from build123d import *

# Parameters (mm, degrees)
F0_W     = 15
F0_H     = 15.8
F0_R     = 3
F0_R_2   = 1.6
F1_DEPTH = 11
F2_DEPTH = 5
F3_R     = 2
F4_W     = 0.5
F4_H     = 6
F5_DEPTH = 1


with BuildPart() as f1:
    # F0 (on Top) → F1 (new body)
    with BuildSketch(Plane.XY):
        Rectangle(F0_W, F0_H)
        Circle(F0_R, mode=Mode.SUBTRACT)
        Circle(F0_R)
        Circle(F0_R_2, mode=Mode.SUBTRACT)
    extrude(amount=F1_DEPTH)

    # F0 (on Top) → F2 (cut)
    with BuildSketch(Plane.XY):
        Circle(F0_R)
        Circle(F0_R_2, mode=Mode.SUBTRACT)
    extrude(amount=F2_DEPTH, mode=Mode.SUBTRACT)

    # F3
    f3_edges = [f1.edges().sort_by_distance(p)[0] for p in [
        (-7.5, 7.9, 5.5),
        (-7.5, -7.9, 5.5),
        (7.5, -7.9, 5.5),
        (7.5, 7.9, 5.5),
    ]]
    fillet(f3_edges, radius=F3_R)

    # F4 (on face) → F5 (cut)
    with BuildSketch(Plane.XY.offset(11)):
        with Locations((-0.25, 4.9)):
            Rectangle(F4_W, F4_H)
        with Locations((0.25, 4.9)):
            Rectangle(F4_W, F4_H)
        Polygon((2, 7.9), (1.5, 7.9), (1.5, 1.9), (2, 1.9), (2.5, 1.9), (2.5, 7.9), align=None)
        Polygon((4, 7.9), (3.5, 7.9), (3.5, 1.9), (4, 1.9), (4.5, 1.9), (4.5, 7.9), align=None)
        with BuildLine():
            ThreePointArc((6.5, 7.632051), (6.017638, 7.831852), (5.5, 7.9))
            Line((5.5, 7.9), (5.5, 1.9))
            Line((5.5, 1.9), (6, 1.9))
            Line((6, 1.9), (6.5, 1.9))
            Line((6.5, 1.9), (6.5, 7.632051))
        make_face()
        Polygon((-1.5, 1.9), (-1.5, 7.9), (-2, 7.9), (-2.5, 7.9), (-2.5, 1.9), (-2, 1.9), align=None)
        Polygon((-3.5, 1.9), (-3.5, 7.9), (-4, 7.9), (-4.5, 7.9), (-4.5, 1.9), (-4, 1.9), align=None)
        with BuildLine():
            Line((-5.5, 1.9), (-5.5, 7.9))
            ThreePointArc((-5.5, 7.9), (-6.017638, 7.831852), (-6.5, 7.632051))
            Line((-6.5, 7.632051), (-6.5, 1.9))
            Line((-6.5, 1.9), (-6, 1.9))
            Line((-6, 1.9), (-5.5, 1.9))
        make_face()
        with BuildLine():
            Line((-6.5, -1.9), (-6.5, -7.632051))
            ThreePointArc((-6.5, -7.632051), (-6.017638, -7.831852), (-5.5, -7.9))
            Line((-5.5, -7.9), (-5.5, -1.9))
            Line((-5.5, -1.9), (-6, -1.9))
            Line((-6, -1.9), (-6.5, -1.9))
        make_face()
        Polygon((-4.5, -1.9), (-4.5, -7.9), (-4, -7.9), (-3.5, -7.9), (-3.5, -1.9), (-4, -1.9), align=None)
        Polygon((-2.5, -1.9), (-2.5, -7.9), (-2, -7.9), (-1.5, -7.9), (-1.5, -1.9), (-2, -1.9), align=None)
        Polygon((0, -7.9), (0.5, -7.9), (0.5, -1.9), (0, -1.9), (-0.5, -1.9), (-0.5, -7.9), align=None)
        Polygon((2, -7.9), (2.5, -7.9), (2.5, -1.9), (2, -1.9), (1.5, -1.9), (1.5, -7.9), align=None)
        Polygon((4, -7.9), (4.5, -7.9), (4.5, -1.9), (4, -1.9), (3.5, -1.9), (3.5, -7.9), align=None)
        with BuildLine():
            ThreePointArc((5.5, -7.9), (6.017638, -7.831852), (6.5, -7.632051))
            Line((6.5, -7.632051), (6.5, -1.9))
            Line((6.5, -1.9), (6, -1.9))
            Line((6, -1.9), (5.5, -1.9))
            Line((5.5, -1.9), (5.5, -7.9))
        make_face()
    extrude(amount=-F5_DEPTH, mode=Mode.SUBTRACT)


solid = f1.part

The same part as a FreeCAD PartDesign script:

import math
import FreeCAD as App
import Part
import Sketcher

V = App.Vector
Q = App.Units.Quantity


def edges_at(feature, points):
    """Names of the edges that pass closest to the given points."""
    edges = feature.Shape.Edges
    near = lambda p: min(range(len(edges)), key=lambda i: edges[i].distToShape(Part.Vertex(*p))[0])
    return sorted({f"Edge{near(p) + 1}" for p in points})

doc = App.newDocument("Part")
body = doc.addObject("PartDesign::Body", "Body")

# Sketch on XY plane
sketch1 = body.newObject("Sketcher::SketchObject", "Sketch")
sketch1.AttachmentSupport = (doc.getObject("XY_Plane"), [""])
sketch1.MapMode = "FlatFace"
sketch1.addGeometry([
    Part.LineSegment(V(-7.5, 7.9, 0), V(-7.5, -7.9, 0)),  # 0
    Part.LineSegment(V(-7.5, -7.9, 0), V(7.5, -7.9, 0)),  # 1
    Part.LineSegment(V(7.5, -7.9, 0), V(7.5, 7.9, 0)),  # 2
    Part.LineSegment(V(7.5, 7.9, 0), V(-7.5, 7.9, 0)),  # 3
    Part.Circle(V(0, 0, 0), V(0, 0, 1), 1.6),  # 4
], False)
sketch1.addConstraint([
    Sketcher.Constraint("Coincident", 0, 2, 1, 1),
    Sketcher.Constraint("Coincident", 1, 2, 2, 1),
    Sketcher.Constraint("Coincident", 2, 2, 3, 1),
    Sketcher.Constraint("Coincident", 3, 2, 0, 1),
    Sketcher.Constraint("Vertical", 0),
    Sketcher.Constraint("Horizontal", 1),
    Sketcher.Constraint("Vertical", 2),
    Sketcher.Constraint("Horizontal", 3),
    Sketcher.Constraint("Coincident", 4, 3, -1, 1),
    Sketcher.Constraint("Symmetric", 0, 2, 2, 2, -1, 1),
    Sketcher.Constraint("Diameter", 4, Q("3.2 mm")),
    Sketcher.Constraint("DistanceX", 1, 1, 1, 2, Q("15 mm")),
    Sketcher.Constraint("DistanceY", 0, 2, 0, 1, Q("15.8 mm")),
])
pad1 = body.newObject("PartDesign::Pad", "Pad")
pad1.Profile = sketch1
pad1.Length = 11

# Sketch on XY plane
sketch2 = body.newObject("Sketcher::SketchObject", "Sketch001")
sketch2.AttachmentSupport = (doc.getObject("XY_Plane"), [""])
sketch2.MapMode = "FlatFace"
sketch2.addGeometry([
    Part.Circle(V(0, 0, 0), V(0, 0, 1), 3),
    Part.Circle(V(0, 0, 0), V(0, 0, 1), 1.6),
], False)
sketch2.addConstraint([
    Sketcher.Constraint("Coincident", 0, 3, -1, 1),
    Sketcher.Constraint("Coincident", 1, 3, -1, 1),
    Sketcher.Constraint("Diameter", 0, Q("6 mm")),
    Sketcher.Constraint("Diameter", 1, Q("3.2 mm")),
])
pocket1 = body.newObject("PartDesign::Pocket", "Pocket")
pocket1.Profile = sketch2
pocket1.Length = 5
pocket1.Reversed = True
doc.recompute()

fillet = body.newObject("PartDesign::Fillet", "Fillet")
fillet.Base = (pocket1, edges_at(pocket1, [
    (-7.5, 7.9, 5.5),
    (-7.5, -7.9, 5.5),
    (7.5, -7.9, 5.5),
    (7.5, 7.9, 5.5),
]))
fillet.Radius = 2

# Sketch on XY plane
sketch3 = body.newObject("Sketcher::SketchObject", "Sketch002")
sketch3.AttachmentSupport = (doc.getObject("XY_Plane"), [""])
sketch3.MapMode = "FlatFace"
sketch3.AttachmentOffset = App.Placement(V(0, 0, 11), App.Rotation())
sketch3.addGeometry([
    Part.LineSegment(V(-0.5, 7.9, 0), V(-0.5, 1.9, 0)),  # 0
    Part.LineSegment(V(-0.5, 1.9, 0), V(0.5, 1.9, 0)),  # 1
    Part.LineSegment(V(0.5, 1.9, 0), V(0.5, 7.9, 0)),  # 2
    Part.LineSegment(V(0.5, 7.9, 0), V(-0.5, 7.9, 0)),  # 3
    Part.LineSegment(V(1.5, 7.9, 0), V(1.5, 1.9, 0)),  # 4
    Part.LineSegment(V(1.5, 1.9, 0), V(2.5, 1.9, 0)),  # 5
    Part.LineSegment(V(2.5, 1.9, 0), V(2.5, 7.9, 0)),  # 6
    Part.LineSegment(V(2.5, 7.9, 0), V(1.5, 7.9, 0)),  # 7
    Part.LineSegment(V(3.5, 7.9, 0), V(3.5, 1.9, 0)),  # 8
    Part.LineSegment(V(3.5, 1.9, 0), V(4.5, 1.9, 0)),  # 9
    Part.LineSegment(V(4.5, 1.9, 0), V(4.5, 7.9, 0)),  # 10
    Part.LineSegment(V(4.5, 7.9, 0), V(3.5, 7.9, 0)),  # 11
    Part.ArcOfCircle(Part.Circle(V(5.5, 5.9, 0), V(0, 0, 1), 2), math.radians(60), math.radians(90)),  # 12
    Part.LineSegment(V(5.5, 7.9, 0), V(5.5, 1.9, 0)),  # 13
    Part.LineSegment(V(5.5, 1.9, 0), V(6.5, 1.9, 0)),  # 14
    Part.LineSegment(V(6.5, 1.9, 0), V(6.5, 7.6, 0)),  # 15
    Part.LineSegment(V(-1.5, 1.9, 0), V(-1.5, 7.9, 0)),  # 16
    Part.LineSegment(V(-1.5, 7.9, 0), V(-2.5, 7.9, 0)),  # 17
    Part.LineSegment(V(-2.5, 7.9, 0), V(-2.5, 1.9, 0)),  # 18
    Part.LineSegment(V(-2.5, 1.9, 0), V(-1.5, 1.9, 0)),  # 19
    Part.LineSegment(V(-3.5, 1.9, 0), V(-3.5, 7.9, 0)),  # 20
    Part.LineSegment(V(-3.5, 7.9, 0), V(-4.5, 7.9, 0)),  # 21
    Part.LineSegment(V(-4.5, 7.9, 0), V(-4.5, 1.9, 0)),  # 22
    Part.LineSegment(V(-4.5, 1.9, 0), V(-3.5, 1.9, 0)),  # 23
    Part.LineSegment(V(-5.5, 1.9, 0), V(-5.5, 7.9, 0)),  # 24
    Part.ArcOfCircle(Part.Circle(V(-5.5, 5.9, 0), V(0, 0, 1), 2), math.radians(90), math.radians(120)),  # 25
    Part.LineSegment(V(-6.5, 7.6, 0), V(-6.5, 1.9, 0)),  # 26
    Part.LineSegment(V(-6.5, 1.9, 0), V(-5.5, 1.9, 0)),  # 27
    Part.LineSegment(V(-6.5, -1.9, 0), V(-6.5, -7.6, 0)),  # 28
    Part.ArcOfCircle(Part.Circle(V(-5.5, -5.9, 0), V(0, 0, 1), 2), math.radians(-120), math.radians(-90)),  # 29
    Part.LineSegment(V(-5.5, -7.9, 0), V(-5.5, -1.9, 0)),  # 30
    Part.LineSegment(V(-5.5, -1.9, 0), V(-6.5, -1.9, 0)),  # 31
    Part.LineSegment(V(-4.5, -1.9, 0), V(-4.5, -7.9, 0)),  # 32
    Part.LineSegment(V(-4.5, -7.9, 0), V(-3.5, -7.9, 0)),  # 33
    Part.LineSegment(V(-3.5, -7.9, 0), V(-3.5, -1.9, 0)),  # 34
    Part.LineSegment(V(-3.5, -1.9, 0), V(-4.5, -1.9, 0)),  # 35
    Part.LineSegment(V(-2.5, -1.9, 0), V(-2.5, -7.9, 0)),  # 36
    Part.LineSegment(V(-2.5, -7.9, 0), V(-1.5, -7.9, 0)),  # 37
    Part.LineSegment(V(-1.5, -7.9, 0), V(-1.5, -1.9, 0)),  # 38
    Part.LineSegment(V(-1.5, -1.9, 0), V(-2.5, -1.9, 0)),  # 39
    Part.LineSegment(V(0.5, -7.9, 0), V(0.5, -1.9, 0)),  # 40
    Part.LineSegment(V(0.5, -1.9, 0), V(-0.5, -1.9, 0)),  # 41
    Part.LineSegment(V(-0.5, -1.9, 0), V(-0.5, -7.9, 0)),  # 42
    Part.LineSegment(V(-0.5, -7.9, 0), V(0.5, -7.9, 0)),  # 43
    Part.LineSegment(V(2.5, -7.9, 0), V(2.5, -1.9, 0)),  # 44
    Part.LineSegment(V(2.5, -1.9, 0), V(1.5, -1.9, 0)),  # 45
    Part.LineSegment(V(1.5, -1.9, 0), V(1.5, -7.9, 0)),  # 46
    Part.LineSegment(V(1.5, -7.9, 0), V(2.5, -7.9, 0)),  # 47
    Part.LineSegment(V(4.5, -7.9, 0), V(4.5, -1.9, 0)),  # 48
    Part.LineSegment(V(4.5, -1.9, 0), V(3.5, -1.9, 0)),  # 49
    Part.LineSegment(V(3.5, -1.9, 0), V(3.5, -7.9, 0)),  # 50
    Part.LineSegment(V(3.5, -7.9, 0), V(4.5, -7.9, 0)),  # 51
    Part.ArcOfCircle(Part.Circle(V(5.5, -5.9, 0), V(0, 0, 1), 2), math.radians(-90), math.radians(-60)),  # 52
    Part.LineSegment(V(6.5, -7.6, 0), V(6.5, -1.9, 0)),  # 53
    Part.LineSegment(V(6.5, -1.9, 0), V(5.5, -1.9, 0)),  # 54
    Part.LineSegment(V(5.5, -1.9, 0), V(5.5, -7.9, 0)),  # 55
], False)
sketch3.addConstraint([
    Sketcher.Constraint("Coincident", 0, 2, 1, 1),
    Sketcher.Constraint("Coincident", 1, 2, 2, 1),
    Sketcher.Constraint("Coincident", 2, 2, 3, 1),
    Sketcher.Constraint("Coincident", 3, 2, 0, 1),
    Sketcher.Constraint("Coincident", 4, 2, 5, 1),
    Sketcher.Constraint("Coincident", 5, 2, 6, 1),
    Sketcher.Constraint("Coincident", 6, 2, 7, 1),
    Sketcher.Constraint("Coincident", 7, 2, 4, 1),
    Sketcher.Constraint("Coincident", 8, 2, 9, 1),
    Sketcher.Constraint("Coincident", 9, 2, 10, 1),
    Sketcher.Constraint("Coincident", 10, 2, 11, 1),
    Sketcher.Constraint("Coincident", 11, 2, 8, 1),
    Sketcher.Constraint("Coincident", 12, 2, 13, 1),
    Sketcher.Constraint("Coincident", 13, 2, 14, 1),
    Sketcher.Constraint("Coincident", 14, 2, 15, 1),
    Sketcher.Constraint("Coincident", 15, 2, 12, 1),
    Sketcher.Constraint("Coincident", 16, 2, 17, 1),
    Sketcher.Constraint("Coincident", 17, 2, 18, 1),
    Sketcher.Constraint("Coincident", 18, 2, 19, 1),
    Sketcher.Constraint("Coincident", 19, 2, 16, 1),
    Sketcher.Constraint("Coincident", 20, 2, 21, 1),
    Sketcher.Constraint("Coincident", 21, 2, 22, 1),
    Sketcher.Constraint("Coincident", 22, 2, 23, 1),
    Sketcher.Constraint("Coincident", 23, 2, 20, 1),
    Sketcher.Constraint("Coincident", 24, 2, 25, 1),
    Sketcher.Constraint("Coincident", 25, 2, 26, 1),
    Sketcher.Constraint("Coincident", 26, 2, 27, 1),
    Sketcher.Constraint("Coincident", 27, 2, 24, 1),
    Sketcher.Constraint("Coincident", 28, 2, 29, 1),
    Sketcher.Constraint("Coincident", 29, 2, 30, 1),
    Sketcher.Constraint("Coincident", 30, 2, 31, 1),
    Sketcher.Constraint("Coincident", 31, 2, 28, 1),
    Sketcher.Constraint("Coincident", 32, 2, 33, 1),
    Sketcher.Constraint("Coincident", 33, 2, 34, 1),
    Sketcher.Constraint("Coincident", 34, 2, 35, 1),
    Sketcher.Constraint("Coincident", 35, 2, 32, 1),
    Sketcher.Constraint("Coincident", 36, 2, 37, 1),
    Sketcher.Constraint("Coincident", 37, 2, 38, 1),
    Sketcher.Constraint("Coincident", 38, 2, 39, 1),
    Sketcher.Constraint("Coincident", 39, 2, 36, 1),
    Sketcher.Constraint("Coincident", 40, 2, 41, 1),
    Sketcher.Constraint("Coincident", 41, 2, 42, 1),
    Sketcher.Constraint("Coincident", 42, 2, 43, 1),
    Sketcher.Constraint("Coincident", 43, 2, 40, 1),
    Sketcher.Constraint("Coincident", 44, 2, 45, 1),
    Sketcher.Constraint("Coincident", 45, 2, 46, 1),
    Sketcher.Constraint("Coincident", 46, 2, 47, 1),
    Sketcher.Constraint("Coincident", 47, 2, 44, 1),
    Sketcher.Constraint("Coincident", 48, 2, 49, 1),
    Sketcher.Constraint("Coincident", 49, 2, 50, 1),
    Sketcher.Constraint("Coincident", 50, 2, 51, 1),
    Sketcher.Constraint("Coincident", 51, 2, 48, 1),
    Sketcher.Constraint("Coincident", 52, 2, 53, 1),
    Sketcher.Constraint("Coincident", 53, 2, 54, 1),
    Sketcher.Constraint("Coincident", 54, 2, 55, 1),
    Sketcher.Constraint("Coincident", 55, 2, 52, 1),
    Sketcher.Constraint("Vertical", 0),
    Sketcher.Constraint("Horizontal", 1),
    Sketcher.Constraint("Vertical", 2),
    Sketcher.Constraint("Horizontal", 3),
    Sketcher.Constraint("Vertical", 4),
    Sketcher.Constraint("Horizontal", 5),
    Sketcher.Constraint("Vertical", 6),
    Sketcher.Constraint("Horizontal", 7),
    Sketcher.Constraint("Vertical", 8),
    Sketcher.Constraint("Horizontal", 9),
    Sketcher.Constraint("Vertical", 10),
    Sketcher.Constraint("Horizontal", 11),
    Sketcher.Constraint("Vertical", 13),
    Sketcher.Constraint("Horizontal", 14),
    Sketcher.Constraint("Vertical", 15),
    Sketcher.Constraint("Vertical", 16),
    Sketcher.Constraint("Horizontal", 17),
    Sketcher.Constraint("Vertical", 18),
    Sketcher.Constraint("Horizontal", 19),
    Sketcher.Constraint("Vertical", 20),
    Sketcher.Constraint("Horizontal", 21),
    Sketcher.Constraint("Vertical", 22),
    Sketcher.Constraint("Horizontal", 23),
    Sketcher.Constraint("Vertical", 24),
    Sketcher.Constraint("Vertical", 26),
    Sketcher.Constraint("Horizontal", 27),
    Sketcher.Constraint("Vertical", 28),
    Sketcher.Constraint("Vertical", 30),
    Sketcher.Constraint("Horizontal", 31),
    Sketcher.Constraint("Vertical", 32),
    Sketcher.Constraint("Horizontal", 33),
    Sketcher.Constraint("Vertical", 34),
    Sketcher.Constraint("Horizontal", 35),
    Sketcher.Constraint("Vertical", 36),
    Sketcher.Constraint("Horizontal", 37),
    Sketcher.Constraint("Vertical", 38),
    Sketcher.Constraint("Horizontal", 39),
    Sketcher.Constraint("Vertical", 40),
    Sketcher.Constraint("Horizontal", 41),
    Sketcher.Constraint("Vertical", 42),
    Sketcher.Constraint("Horizontal", 43),
    Sketcher.Constraint("Vertical", 44),
    Sketcher.Constraint("Horizontal", 45),
    Sketcher.Constraint("Vertical", 46),
    Sketcher.Constraint("Horizontal", 47),
    Sketcher.Constraint("Vertical", 48),
    Sketcher.Constraint("Horizontal", 49),
    Sketcher.Constraint("Vertical", 50),
    Sketcher.Constraint("Horizontal", 51),
    Sketcher.Constraint("Vertical", 53),
    Sketcher.Constraint("Horizontal", 54),
    Sketcher.Constraint("Vertical", 55),
    Sketcher.Constraint("Equal", 12, 25),
    Sketcher.Constraint("Equal", 25, 29),
    Sketcher.Constraint("Equal", 29, 52),
    Sketcher.Constraint("Symmetric", 12, 3, 29, 3, -1, 1),
    Sketcher.Constraint("Symmetric", 25, 3, 52, 3, -1, 1),
    Sketcher.Constraint("Symmetric", 13, 2, 30, 2, -1, 1),
    Sketcher.Constraint("Symmetric", 10, 2, 32, 2, -1, 1),
    Sketcher.Constraint("Symmetric", 8, 2, 34, 2, -1, 1),
    Sketcher.Constraint("Symmetric", 6, 2, 36, 2, -1, 1),
    Sketcher.Constraint("Symmetric", 4, 2, 38, 2, -1, 1),
    Sketcher.Constraint("Symmetric", 0, 2, 40, 2, -1, 1),
    Sketcher.Constraint("Symmetric", 2, 2, 42, 2, -1, 1),
    Sketcher.Constraint("Symmetric", 18, 2, 44, 2, -1, 1),
    Sketcher.Constraint("Symmetric", 16, 2, 46, 2, -1, 1),
    Sketcher.Constraint("Symmetric", 22, 2, 48, 2, -1, 1),
    Sketcher.Constraint("Symmetric", 20, 2, 50, 2, -1, 1),
    Sketcher.Constraint("Symmetric", 26, 2, 53, 2, -1, 1),
    Sketcher.Constraint("Symmetric", 12, 3, 25, 3, -2),
    Sketcher.Constraint("Symmetric", 7, 2, 16, 2, -2),
    Sketcher.Constraint("Symmetric", 5, 2, 18, 2, -2),
    Sketcher.Constraint("Symmetric", 11, 2, 20, 2, -2),
    Sketcher.Constraint("Symmetric", 9, 2, 22, 2, -2),
    Sketcher.Constraint("Symmetric", 14, 2, 26, 2, -2),
    Sketcher.Constraint("Horizontal", 1, 2, 4, 2),
    Sketcher.Constraint("Horizontal", 3, 2, 6, 2),
    Sketcher.Constraint("Horizontal", 5, 2, 8, 2),
    Sketcher.Constraint("Horizontal", 7, 2, 10, 2),
    Sketcher.Constraint("Horizontal", 11, 2, 12, 2),
    Sketcher.Constraint("Horizontal", 9, 2, 13, 2),
    Sketcher.Constraint("Horizontal", 28, 2, 52, 2),
    Sketcher.Constraint("Vertical", 27, 2, 29, 2),
    Sketcher.Constraint("Vertical", 2, 2, 40, 2),
    Sketcher.Constraint("Vertical", 13, 2, 54, 2),
    Sketcher.Constraint("Equal", 3, 5),
    Sketcher.Constraint("Equal", 7, 9),
    Sketcher.Constraint("Equal", 11, 14),
    Sketcher.Constraint("DistanceX", 1, 1, 1, 2, Q("1 mm")),
    Sketcher.Constraint("DistanceY", 0, 2, 0, 1, Q("6 mm")),
    Sketcher.Constraint("DistanceX", 1, 2, 4, 2, Q("1 mm")),
    Sketcher.Constraint("DistanceX", 5, 2, 8, 2, Q("1 mm")),
    Sketcher.Constraint("DistanceX", 10, 2, 12, 2, Q("1 mm")),
    Sketcher.Constraint("DistanceY", -1, 1, 0, 2, Q("1.9 mm")),
    Sketcher.Constraint("Radius", 12, Q("1.999994 mm")),
    Sketcher.Constraint("DistanceY", 15, 1, 15, 2, Q("5.732051 mm")),
])
pocket2 = body.newObject("PartDesign::Pocket", "Pocket001")
pocket2.Profile = sketch3
pocket2.Length = 1

doc.recompute()
